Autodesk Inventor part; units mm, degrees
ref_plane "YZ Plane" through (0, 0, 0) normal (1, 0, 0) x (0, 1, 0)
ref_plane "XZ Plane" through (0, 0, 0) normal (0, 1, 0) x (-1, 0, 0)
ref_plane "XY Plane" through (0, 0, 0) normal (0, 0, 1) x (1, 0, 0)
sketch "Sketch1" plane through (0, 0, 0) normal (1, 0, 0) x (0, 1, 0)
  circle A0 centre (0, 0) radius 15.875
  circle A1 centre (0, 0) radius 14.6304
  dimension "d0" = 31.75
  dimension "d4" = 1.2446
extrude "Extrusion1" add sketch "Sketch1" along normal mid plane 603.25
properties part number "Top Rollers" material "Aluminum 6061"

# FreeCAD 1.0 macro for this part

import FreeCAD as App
import Part
import Sketcher

V = App.Vector
Q = App.Units.Quantity

doc = App.newDocument("Part")
body = doc.addObject("PartDesign::Body", "Body")

sketch1 = doc.addObject("Sketcher::SketchObject", "Sketch")
body.addObject(sketch1)
sketch1.AttachmentSupport = (doc.YZ_Plane, [""])
sketch1.MapMode = "FlatFace"
sketch1.addGeometry([
    Part.Circle(V(0, 0, 0), V(0, 0, 1), 16),
    Part.Circle(V(0, 0, 0), V(0, 0, 1), 15),
], False)
sketch1.addConstraint([
    Sketcher.Constraint("Coincident", 0, 3, -1, 1),
    Sketcher.Constraint("Coincident", 1, 3, -1, 1),
    Sketcher.Constraint("Diameter", 0, Q("1.25 in")),
    Sketcher.Constraint("Diameter", 1, Q("1.152 in")),
])
pad1 = doc.addObject("PartDesign::Pad", "Pad")
body.addObject(pad1)
pad1.Profile = sketch1
pad1.Length = Q("23.75 in")
pad1.Midplane = True

doc.recompute()
